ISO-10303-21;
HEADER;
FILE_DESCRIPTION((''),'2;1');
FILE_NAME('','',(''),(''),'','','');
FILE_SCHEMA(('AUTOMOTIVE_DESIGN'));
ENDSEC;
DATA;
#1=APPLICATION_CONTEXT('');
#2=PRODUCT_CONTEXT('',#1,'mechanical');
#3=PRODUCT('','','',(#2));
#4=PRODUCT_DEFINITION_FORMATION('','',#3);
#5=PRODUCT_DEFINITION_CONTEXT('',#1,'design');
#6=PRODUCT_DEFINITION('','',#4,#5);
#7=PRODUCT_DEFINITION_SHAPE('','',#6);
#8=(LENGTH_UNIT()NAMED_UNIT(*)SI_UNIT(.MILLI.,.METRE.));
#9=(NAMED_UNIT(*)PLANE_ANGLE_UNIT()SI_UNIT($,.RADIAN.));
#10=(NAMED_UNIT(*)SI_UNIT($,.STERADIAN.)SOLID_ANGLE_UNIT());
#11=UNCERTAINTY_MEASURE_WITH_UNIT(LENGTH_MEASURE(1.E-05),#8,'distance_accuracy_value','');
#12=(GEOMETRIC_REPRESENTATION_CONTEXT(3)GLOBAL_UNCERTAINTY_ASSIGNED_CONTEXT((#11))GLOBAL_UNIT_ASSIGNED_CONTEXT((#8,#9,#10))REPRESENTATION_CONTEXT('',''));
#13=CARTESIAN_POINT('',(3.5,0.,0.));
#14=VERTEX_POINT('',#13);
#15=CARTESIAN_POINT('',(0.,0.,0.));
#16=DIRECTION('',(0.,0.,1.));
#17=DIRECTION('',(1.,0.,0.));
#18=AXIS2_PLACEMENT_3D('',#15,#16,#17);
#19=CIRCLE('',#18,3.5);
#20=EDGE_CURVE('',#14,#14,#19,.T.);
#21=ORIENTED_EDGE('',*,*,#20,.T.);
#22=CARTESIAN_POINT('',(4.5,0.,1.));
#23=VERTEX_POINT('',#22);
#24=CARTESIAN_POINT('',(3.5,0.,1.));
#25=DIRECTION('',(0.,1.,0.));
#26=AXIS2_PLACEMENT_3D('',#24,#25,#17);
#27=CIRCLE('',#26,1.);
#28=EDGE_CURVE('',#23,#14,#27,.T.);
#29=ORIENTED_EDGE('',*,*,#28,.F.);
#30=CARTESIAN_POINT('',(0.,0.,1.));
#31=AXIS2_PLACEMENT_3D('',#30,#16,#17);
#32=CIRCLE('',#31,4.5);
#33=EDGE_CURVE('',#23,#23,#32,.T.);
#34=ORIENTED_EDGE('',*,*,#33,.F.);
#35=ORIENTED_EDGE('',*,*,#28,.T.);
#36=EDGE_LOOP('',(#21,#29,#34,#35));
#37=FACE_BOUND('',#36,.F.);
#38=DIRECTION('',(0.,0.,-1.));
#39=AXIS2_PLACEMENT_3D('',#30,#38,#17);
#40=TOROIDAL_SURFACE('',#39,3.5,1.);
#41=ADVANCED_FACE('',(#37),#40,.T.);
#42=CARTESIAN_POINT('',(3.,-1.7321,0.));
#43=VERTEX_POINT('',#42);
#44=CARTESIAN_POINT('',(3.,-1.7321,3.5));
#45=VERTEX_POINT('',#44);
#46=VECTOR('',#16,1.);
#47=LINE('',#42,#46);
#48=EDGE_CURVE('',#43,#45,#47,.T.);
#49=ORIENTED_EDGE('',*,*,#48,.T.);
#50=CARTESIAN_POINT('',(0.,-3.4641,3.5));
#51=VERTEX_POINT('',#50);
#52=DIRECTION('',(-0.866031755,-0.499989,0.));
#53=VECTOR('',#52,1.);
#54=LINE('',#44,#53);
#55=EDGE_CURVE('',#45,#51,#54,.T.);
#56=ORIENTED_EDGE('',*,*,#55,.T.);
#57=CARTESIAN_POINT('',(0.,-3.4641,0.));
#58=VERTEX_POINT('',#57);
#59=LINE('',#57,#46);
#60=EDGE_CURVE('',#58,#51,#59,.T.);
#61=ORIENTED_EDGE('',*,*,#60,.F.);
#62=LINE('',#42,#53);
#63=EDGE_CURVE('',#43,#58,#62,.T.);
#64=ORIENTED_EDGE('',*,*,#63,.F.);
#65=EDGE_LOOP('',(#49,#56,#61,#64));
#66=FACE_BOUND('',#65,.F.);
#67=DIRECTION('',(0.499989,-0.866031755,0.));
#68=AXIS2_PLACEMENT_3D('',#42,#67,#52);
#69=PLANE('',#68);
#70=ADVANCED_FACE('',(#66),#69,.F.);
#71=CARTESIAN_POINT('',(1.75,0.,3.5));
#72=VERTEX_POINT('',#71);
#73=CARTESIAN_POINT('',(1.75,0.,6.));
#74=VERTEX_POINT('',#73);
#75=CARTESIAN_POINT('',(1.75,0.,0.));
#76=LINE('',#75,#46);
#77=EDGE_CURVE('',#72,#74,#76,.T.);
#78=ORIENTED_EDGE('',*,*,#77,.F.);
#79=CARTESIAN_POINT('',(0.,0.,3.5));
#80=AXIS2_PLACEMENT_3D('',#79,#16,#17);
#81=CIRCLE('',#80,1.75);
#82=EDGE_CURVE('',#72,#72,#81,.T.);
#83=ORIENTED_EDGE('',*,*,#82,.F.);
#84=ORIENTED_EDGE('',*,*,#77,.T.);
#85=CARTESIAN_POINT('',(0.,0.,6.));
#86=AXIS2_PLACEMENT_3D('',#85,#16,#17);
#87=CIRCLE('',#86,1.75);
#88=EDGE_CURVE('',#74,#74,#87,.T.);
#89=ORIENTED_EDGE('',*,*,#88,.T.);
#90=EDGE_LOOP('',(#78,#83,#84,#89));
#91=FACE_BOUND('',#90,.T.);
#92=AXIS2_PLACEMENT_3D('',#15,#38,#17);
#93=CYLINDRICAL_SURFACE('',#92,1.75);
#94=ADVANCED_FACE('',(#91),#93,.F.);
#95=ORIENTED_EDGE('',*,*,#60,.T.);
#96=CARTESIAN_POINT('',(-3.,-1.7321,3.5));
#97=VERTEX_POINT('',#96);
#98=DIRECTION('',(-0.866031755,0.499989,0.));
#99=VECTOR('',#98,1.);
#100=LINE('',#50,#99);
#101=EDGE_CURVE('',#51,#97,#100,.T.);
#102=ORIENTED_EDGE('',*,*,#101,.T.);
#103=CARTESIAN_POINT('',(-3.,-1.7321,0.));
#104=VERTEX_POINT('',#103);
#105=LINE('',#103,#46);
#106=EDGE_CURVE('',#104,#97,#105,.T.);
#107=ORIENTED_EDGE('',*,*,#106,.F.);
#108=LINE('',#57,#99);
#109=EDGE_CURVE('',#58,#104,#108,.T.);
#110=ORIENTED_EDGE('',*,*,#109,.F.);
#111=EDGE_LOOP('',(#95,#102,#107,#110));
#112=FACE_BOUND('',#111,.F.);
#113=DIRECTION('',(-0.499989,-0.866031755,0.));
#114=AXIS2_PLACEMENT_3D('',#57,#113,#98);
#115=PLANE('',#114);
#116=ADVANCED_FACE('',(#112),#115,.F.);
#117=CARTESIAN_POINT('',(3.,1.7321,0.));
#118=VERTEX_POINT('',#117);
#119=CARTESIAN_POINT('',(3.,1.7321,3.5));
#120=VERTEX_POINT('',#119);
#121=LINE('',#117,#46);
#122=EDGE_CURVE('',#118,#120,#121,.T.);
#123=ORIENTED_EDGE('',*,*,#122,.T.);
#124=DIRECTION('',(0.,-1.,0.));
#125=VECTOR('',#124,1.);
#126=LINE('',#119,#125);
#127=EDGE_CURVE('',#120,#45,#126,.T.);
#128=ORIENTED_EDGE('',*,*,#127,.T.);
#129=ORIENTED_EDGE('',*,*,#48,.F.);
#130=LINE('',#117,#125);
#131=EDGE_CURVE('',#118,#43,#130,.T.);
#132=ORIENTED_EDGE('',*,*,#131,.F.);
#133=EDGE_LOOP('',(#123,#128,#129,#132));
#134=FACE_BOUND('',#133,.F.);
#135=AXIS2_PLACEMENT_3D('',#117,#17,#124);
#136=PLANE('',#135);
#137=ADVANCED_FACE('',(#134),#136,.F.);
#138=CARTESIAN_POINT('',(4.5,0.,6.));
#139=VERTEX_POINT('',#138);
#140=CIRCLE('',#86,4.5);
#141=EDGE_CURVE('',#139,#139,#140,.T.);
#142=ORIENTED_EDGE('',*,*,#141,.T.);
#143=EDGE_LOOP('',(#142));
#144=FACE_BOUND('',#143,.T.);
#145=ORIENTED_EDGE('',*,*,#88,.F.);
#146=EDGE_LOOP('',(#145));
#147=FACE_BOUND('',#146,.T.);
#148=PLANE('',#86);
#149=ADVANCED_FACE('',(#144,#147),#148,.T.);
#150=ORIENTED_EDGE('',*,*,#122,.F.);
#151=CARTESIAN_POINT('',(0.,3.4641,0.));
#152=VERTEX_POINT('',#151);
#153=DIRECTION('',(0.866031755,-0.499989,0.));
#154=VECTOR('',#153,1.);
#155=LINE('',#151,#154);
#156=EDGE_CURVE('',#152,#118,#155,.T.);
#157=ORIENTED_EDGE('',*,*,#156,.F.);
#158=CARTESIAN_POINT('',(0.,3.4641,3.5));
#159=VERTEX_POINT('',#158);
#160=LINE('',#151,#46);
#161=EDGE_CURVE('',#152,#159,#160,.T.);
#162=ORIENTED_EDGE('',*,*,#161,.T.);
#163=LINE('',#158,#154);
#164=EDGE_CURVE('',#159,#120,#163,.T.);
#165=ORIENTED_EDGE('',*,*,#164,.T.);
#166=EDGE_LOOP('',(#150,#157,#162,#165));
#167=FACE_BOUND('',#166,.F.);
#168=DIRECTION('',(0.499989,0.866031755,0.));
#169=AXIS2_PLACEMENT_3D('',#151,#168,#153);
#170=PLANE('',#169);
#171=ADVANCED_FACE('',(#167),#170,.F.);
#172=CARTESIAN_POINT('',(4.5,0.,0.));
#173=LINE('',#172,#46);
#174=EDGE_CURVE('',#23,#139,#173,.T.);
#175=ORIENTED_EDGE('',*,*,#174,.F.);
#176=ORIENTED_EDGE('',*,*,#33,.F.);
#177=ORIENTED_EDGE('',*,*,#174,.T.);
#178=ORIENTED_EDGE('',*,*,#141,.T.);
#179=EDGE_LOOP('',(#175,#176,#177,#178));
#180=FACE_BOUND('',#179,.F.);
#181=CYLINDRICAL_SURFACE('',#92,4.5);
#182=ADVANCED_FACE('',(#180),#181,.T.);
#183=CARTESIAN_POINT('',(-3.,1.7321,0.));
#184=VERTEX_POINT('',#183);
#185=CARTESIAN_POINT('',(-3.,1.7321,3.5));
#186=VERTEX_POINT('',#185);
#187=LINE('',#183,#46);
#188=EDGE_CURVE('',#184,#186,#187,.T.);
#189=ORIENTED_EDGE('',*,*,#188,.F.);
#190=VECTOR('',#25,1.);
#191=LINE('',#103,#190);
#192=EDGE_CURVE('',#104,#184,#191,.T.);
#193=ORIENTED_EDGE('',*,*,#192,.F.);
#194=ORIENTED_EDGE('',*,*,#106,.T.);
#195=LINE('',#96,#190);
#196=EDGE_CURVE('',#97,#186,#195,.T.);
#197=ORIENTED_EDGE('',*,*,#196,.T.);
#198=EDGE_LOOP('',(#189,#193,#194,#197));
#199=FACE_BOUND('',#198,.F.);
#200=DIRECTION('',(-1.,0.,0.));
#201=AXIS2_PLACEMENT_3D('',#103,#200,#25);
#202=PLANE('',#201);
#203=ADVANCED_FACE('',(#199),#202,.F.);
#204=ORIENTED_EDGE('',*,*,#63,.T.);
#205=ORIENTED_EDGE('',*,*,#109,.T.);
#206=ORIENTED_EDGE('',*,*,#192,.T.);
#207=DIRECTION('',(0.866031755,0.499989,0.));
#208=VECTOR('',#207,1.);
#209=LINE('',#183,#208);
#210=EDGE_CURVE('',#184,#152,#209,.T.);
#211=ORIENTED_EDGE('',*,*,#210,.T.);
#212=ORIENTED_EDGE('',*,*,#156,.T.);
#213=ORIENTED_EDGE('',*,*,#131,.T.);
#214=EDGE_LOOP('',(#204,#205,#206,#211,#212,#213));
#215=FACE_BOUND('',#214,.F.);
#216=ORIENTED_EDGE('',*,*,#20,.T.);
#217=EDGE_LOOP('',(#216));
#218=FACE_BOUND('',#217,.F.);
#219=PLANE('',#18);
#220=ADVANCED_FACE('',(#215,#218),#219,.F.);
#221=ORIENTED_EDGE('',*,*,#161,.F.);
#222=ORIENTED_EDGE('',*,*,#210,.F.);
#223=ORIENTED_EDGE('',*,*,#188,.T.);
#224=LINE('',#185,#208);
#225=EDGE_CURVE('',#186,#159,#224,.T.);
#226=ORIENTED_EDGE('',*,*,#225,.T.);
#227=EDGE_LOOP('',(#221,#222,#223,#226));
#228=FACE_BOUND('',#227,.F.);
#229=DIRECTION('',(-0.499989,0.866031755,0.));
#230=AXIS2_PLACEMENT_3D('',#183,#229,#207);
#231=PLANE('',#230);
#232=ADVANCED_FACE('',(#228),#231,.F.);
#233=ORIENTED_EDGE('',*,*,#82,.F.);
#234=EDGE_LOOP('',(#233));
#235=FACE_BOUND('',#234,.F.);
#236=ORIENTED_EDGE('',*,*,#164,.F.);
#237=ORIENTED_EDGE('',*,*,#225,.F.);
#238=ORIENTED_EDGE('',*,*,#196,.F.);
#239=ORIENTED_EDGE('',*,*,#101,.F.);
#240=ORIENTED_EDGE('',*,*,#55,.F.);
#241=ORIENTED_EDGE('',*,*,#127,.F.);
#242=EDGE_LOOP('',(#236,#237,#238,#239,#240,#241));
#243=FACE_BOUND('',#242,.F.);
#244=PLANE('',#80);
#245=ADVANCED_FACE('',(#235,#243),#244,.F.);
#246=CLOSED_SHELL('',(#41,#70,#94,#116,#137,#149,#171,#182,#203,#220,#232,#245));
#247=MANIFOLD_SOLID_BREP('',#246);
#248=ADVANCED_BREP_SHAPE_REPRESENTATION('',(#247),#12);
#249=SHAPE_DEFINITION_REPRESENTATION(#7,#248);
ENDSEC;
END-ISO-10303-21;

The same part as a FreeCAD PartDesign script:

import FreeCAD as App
import Part
import Sketcher
from FreeCAD import Vector
Q = App.Units.Quantity


def edges_at(feature, points):
    """Names of the edges that pass closest to the given points."""
    edges = feature.Shape.Edges
    near = lambda p: min(range(len(edges)), key=lambda i: edges[i].distToShape(Part.Vertex(*p))[0])
    return sorted({f"Edge{near(p) + 1}" for p in points})

doc = App.newDocument("Part")
params = doc.addObject("Spreadsheet::Sheet", "Params")
for row, (alias, value) in enumerate([
    ("sketch1_diameter", "9 mm"),
    ("sketch1_diameter2", "3.5 mm"),
    ("pad1_length", "6 mm"),
    ("sketch2_diameter", "3.5 mm"),
    ("pocket1_length", "3.5 mm"),
    ("fillet_radius", "1 mm"),
], start=1):
    params.set(f"A{row}", alias)
    params.set(f"B{row}", "=" + value)
    params.setAlias(f"B{row}", alias)

body = doc.addObject("PartDesign::Body", "Body")

# Sketch on XY plane
sketch1 = body.newObject("Sketcher::SketchObject", "Sketch")
sketch1.AttachmentSupport = (doc.getObject("XY_Plane"), [""])
sketch1.MapMode = "FlatFace"
sketch1.addGeometry([
    Part.Circle(Vector(0, 0, 0), Vector(0, 0, 1), 4.5),
    Part.Circle(Vector(0, 0, 0), Vector(0, 0, 1), 1.8),
], False)
sketch1.addConstraint([
    Sketcher.Constraint("Coincident", 0, 3, -1, 1),
    Sketcher.Constraint("Coincident", 1, 3, -1, 1),
    Sketcher.Constraint("Diameter", 0, 9.0),
    Sketcher.Constraint("Diameter", 1, 3.5),
])
sketch1.setExpression("Constraints[2]", "Params.sketch1_diameter")
sketch1.setExpression("Constraints[3]", "Params.sketch1_diameter2")
pad1 = body.newObject("PartDesign::Pad", "Pad")
pad1.Profile = sketch1
pad1.setExpression("Length", "Params.pad1_length")

# Sketch on XY plane
sketch2 = body.newObject("Sketcher::SketchObject", "Sketch001")
sketch2.AttachmentSupport = (doc.getObject("XY_Plane"), [""])
sketch2.MapMode = "FlatFace"
sketch2.addGeometry([
    Part.LineSegment(Vector(3, 1.7, 0), Vector(0, 3.5, 0)),  # 0
    Part.LineSegment(Vector(0, 3.5, 0), Vector(-3, 1.7, 0)),  # 1
    Part.LineSegment(Vector(-3, 1.7, 0), Vector(-3, -1.7, 0)),  # 2
    Part.LineSegment(Vector(-3, -1.7, 0), Vector(0, -3.5, 0)),  # 3
    Part.LineSegment(Vector(0, -3.5, 0), Vector(3, -1.7, 0)),  # 4
    Part.LineSegment(Vector(3, -1.7, 0), Vector(3, 1.7, 0)),  # 5
    Part.Circle(Vector(0, 0, 0), Vector(0, 0, 1), 1.8),  # 6
], False)
sketch2.addConstraint([
    Sketcher.Constraint("Coincident", 0, 2, 1, 1),
    Sketcher.Constraint("Coincident", 1, 2, 2, 1),
    Sketcher.Constraint("Coincident", 2, 2, 3, 1),
    Sketcher.Constraint("Coincident", 3, 2, 4, 1),
    Sketcher.Constraint("Coincident", 4, 2, 5, 1),
    Sketcher.Constraint("Coincident", 5, 2, 0, 1),
    Sketcher.Constraint("Vertical", 2),
    Sketcher.Constraint("Vertical", 5),
    Sketcher.Constraint("Coincident", 6, 3, -1, 1),
    Sketcher.Constraint("Symmetric", 0, 2, 3, 2, -1, 1),
    Sketcher.Constraint("Symmetric", 1, 2, 4, 2, -1, 1),
    Sketcher.Constraint("PointOnObject", 0, 2, -2),
    Sketcher.Constraint("Parallel", 0, 3),
    Sketcher.Constraint("Horizontal", 2, 2, 4, 2),
    Sketcher.Constraint("Diameter", 6, 3.5),
    Sketcher.Constraint("DistanceX", 2, 2, 4, 2, 6.0),
    Sketcher.Constraint("Angle", 0, Q("150.0007 deg")),
    Sketcher.Constraint("DistanceY", 2, 2, 2, 1, 3.4642),
])
sketch2.setExpression("Constraints[14]", "Params.sketch2_diameter")
pocket1 = body.newObject("PartDesign::Pocket", "Pocket")
pocket1.Profile = sketch2
pocket1.setExpression("Length", "Params.pocket1_length")
pocket1.Reversed = True
doc.recompute()

fillet = body.newObject("PartDesign::Fillet", "Fillet")
fillet.Base = (pocket1, edges_at(pocket1, [(-4.5, 0, 0)]))
fillet.setExpression("Radius", "Params.fillet_radius")

doc.recompute()
